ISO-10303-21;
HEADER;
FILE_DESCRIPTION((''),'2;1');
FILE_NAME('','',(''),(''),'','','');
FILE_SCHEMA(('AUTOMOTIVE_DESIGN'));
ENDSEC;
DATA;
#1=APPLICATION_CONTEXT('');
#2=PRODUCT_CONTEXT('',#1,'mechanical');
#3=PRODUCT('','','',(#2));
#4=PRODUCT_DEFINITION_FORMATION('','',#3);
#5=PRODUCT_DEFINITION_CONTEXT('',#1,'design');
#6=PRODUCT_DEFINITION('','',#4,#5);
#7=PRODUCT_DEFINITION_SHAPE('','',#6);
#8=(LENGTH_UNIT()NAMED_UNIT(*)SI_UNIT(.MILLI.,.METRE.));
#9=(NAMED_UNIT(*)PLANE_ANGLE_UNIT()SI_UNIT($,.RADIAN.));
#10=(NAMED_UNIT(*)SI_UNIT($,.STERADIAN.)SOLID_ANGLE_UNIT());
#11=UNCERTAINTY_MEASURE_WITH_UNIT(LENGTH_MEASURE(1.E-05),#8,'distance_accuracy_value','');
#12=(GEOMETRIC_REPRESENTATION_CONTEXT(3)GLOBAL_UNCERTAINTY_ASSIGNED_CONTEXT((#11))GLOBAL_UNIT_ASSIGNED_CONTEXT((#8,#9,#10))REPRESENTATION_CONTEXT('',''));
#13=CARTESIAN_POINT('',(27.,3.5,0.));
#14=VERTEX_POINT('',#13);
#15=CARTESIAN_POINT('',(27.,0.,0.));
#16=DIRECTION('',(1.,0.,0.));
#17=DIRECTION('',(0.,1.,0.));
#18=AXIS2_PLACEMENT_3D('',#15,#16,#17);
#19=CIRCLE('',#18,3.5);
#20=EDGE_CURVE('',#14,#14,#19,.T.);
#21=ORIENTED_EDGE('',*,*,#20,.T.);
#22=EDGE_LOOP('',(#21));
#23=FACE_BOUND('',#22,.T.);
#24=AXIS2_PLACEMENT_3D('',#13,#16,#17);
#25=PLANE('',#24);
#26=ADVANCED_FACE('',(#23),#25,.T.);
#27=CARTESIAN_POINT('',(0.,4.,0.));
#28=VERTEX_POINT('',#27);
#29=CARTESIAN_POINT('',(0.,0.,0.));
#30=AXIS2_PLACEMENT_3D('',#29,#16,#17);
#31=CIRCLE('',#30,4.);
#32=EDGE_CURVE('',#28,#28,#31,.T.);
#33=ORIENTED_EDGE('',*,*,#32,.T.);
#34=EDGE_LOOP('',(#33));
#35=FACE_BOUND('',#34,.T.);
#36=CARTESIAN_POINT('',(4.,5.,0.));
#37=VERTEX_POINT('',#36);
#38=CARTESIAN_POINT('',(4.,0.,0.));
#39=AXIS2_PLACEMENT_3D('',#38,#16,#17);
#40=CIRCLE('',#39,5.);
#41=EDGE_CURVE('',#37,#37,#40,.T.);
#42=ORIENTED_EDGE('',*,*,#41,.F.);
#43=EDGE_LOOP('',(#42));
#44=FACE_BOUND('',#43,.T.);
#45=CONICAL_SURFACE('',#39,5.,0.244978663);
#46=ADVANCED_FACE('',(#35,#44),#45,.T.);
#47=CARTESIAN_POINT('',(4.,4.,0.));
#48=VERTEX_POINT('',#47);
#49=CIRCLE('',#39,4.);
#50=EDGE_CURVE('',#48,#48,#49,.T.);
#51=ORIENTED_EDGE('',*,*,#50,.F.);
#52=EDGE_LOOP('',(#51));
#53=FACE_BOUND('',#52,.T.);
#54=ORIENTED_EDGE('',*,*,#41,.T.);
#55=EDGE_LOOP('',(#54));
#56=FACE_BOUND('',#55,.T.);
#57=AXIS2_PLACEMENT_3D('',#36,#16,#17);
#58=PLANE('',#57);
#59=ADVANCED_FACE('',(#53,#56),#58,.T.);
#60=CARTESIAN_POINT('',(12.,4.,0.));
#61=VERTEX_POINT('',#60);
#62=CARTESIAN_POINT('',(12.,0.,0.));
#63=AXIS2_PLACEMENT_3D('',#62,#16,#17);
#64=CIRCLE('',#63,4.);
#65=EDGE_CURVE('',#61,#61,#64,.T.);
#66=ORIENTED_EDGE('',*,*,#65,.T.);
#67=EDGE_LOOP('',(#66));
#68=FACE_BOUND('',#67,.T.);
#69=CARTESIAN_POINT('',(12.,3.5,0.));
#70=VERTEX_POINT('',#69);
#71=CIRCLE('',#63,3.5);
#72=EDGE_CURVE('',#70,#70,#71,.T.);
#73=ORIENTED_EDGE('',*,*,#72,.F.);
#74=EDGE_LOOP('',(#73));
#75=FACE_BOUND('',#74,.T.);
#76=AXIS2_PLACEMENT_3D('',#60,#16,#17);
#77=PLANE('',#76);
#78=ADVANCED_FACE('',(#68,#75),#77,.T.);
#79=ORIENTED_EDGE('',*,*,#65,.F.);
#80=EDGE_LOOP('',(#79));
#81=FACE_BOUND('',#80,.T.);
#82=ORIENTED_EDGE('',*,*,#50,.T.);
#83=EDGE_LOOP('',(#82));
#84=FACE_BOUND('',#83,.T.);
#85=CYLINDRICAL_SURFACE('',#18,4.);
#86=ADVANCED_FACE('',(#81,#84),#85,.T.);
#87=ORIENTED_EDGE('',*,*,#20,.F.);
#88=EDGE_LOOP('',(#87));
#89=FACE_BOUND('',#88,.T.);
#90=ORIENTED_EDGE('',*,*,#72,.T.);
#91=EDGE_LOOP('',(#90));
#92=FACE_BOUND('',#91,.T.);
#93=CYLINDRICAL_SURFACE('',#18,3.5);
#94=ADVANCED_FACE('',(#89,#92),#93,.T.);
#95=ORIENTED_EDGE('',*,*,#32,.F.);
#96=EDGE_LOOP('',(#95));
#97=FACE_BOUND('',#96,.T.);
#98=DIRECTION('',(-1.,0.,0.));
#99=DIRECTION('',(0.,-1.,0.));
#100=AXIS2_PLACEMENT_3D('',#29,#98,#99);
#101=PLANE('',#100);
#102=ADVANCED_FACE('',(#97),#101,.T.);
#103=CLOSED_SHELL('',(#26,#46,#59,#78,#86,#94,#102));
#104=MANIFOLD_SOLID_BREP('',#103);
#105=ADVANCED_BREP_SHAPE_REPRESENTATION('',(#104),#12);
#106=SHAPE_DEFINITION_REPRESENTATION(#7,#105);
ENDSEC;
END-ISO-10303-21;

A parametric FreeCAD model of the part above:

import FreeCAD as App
import Part
import Sketcher
Q = App.Units.Quantity


def add_polygon(sketch, points):
    """Adds a closed chain of lines whose ends are joined by coincident constraints."""
    first, n = sketch.GeometryCount, len(points)
    for a, b in zip(points, points[1:] + points[:1]):
        sketch.addGeometry(Part.LineSegment(App.Vector(*a, 0), App.Vector(*b, 0)), False)
    for i in range(n):
        sketch.addConstraint(Sketcher.Constraint("Coincident", first + i, 2, first + (i + 1) % n, 1))

doc = App.newDocument("Part")
body = doc.addObject("PartDesign::Body", "Body")

# Sketch on XY plane
sketch1 = body.newObject("Sketcher::SketchObject", "Sketch")
sketch1.AttachmentSupport = (doc.getObject("XY_Plane"), [""])
sketch1.MapMode = "FlatFace"
add_polygon(sketch1, [(0, 4), (0, 0), (27, 0), (27, 3.5), (12, 3.5), (12, 4), (4, 4), (4, 5)])  # lines 0-7
sketch1.addConstraint([
    Sketcher.Constraint("Vertical", 0),
    Sketcher.Constraint("Horizontal", 1),
    Sketcher.Constraint("Vertical", 2),
    Sketcher.Constraint("Horizontal", 3),
    Sketcher.Constraint("Vertical", 4),
    Sketcher.Constraint("Horizontal", 5),
    Sketcher.Constraint("Vertical", 6),
    Sketcher.Constraint("Coincident", 0, 2, -1, 1),
    Sketcher.Constraint("Horizontal", 5, 2, 7, 2),
    Sketcher.Constraint("DistanceX", 1, 1, 1, 2, Q("27 mm")),
    Sketcher.Constraint("DistanceX", 3, 2, 3, 1, Q("15 mm")),
    Sketcher.Constraint("DistanceX", 5, 2, 5, 1, Q("8 mm")),
    Sketcher.Constraint("DistanceY", 0, 2, 0, 1, Q("4 mm")),
    Sketcher.Constraint("DistanceY", 6, 1, 6, 2, Q("1 mm")),
    Sketcher.Constraint("DistanceY", 2, 1, 2, 2, Q("3.5 mm")),
])
revolution = body.newObject("PartDesign::Revolution", "Revolution")
revolution.Profile = sketch1
revolution.ReferenceAxis = (sketch1, ["H_Axis"])
revolution.Angle = 360

doc.recompute()
